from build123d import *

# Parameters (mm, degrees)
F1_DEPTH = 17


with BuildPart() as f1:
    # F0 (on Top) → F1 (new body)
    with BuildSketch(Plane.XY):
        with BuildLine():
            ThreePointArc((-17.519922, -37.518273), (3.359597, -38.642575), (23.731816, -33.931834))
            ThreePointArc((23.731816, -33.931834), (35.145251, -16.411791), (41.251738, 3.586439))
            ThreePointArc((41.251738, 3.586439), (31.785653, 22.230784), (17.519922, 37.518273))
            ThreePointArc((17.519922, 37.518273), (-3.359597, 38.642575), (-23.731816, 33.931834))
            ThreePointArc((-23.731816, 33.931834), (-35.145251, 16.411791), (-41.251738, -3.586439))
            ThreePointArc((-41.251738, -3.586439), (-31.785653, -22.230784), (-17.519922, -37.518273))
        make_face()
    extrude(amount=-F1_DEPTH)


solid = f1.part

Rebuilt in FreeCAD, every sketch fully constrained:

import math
import FreeCAD as App
import Part
import Sketcher

V = App.Vector

doc = App.newDocument("Part")
body = doc.addObject("PartDesign::Body", "Body")

# Sketch on XY plane
sketch1 = body.newObject("Sketcher::SketchObject", "Sketch")
sketch1.AttachmentSupport = (doc.getObject("XY_Plane"), [""])
sketch1.MapMode = "FlatFace"
sketch1.addGeometry([
    Part.ArcOfCircle(Part.Circle(V(-3.105949, 35.72507, 0), V(0, 0, 1), 74.648174), math.radians(-101.133291), math.radians(-68.929071)),  # 0
    Part.ArcOfCircle(Part.Circle(V(-32.491767, 15.172693, 0), V(0, 0, 1), 74.648147), math.radians(-41.133297), math.radians(-8.929065)),  # 1
    Part.ArcOfCircle(Part.Circle(V(-29.385842, -20.552363, 0), V(0, 0, 1), 74.648171), math.radians(18.866707), math.radians(51.070929)),  # 2
    Part.ArcOfCircle(Part.Circle(V(3.105949, -35.72507, 0), V(0, 0, 1), 74.648174), math.radians(78.866709), math.radians(111.070929)),  # 3
    Part.ArcOfCircle(Part.Circle(V(32.491767, -15.172693, 0), V(0, 0, 1), 74.648147), math.radians(138.866703), math.radians(171.070935)),  # 4
    Part.ArcOfCircle(Part.Circle(V(29.385842, 20.552363, 0), V(0, 0, 1), 74.648171), math.radians(-161.133293), math.radians(-128.929071)),  # 5
], False)
sketch1.addConstraint([
    Sketcher.Constraint("Coincident", 0, 2, 1, 1),
    Sketcher.Constraint("Coincident", 1, 2, 2, 1),
    Sketcher.Constraint("Coincident", 2, 2, 3, 1),
    Sketcher.Constraint("Coincident", 3, 2, 4, 1),
    Sketcher.Constraint("Coincident", 4, 2, 5, 1),
    Sketcher.Constraint("Coincident", 5, 2, 0, 1),
    Sketcher.Constraint("Equal", 0, 3),
    Sketcher.Constraint("Equal", 1, 4),
    Sketcher.Constraint("Equal", 2, 5),
    Sketcher.Constraint("Symmetric", 0, 3, 3, 3, -1, 1),
    Sketcher.Constraint("Symmetric", 1, 3, 4, 3, -1, 1),
    Sketcher.Constraint("Symmetric", 2, 3, 5, 3, -1, 1),
    Sketcher.Constraint("Radius", 2, 74.648171),
    Sketcher.Constraint("Radius", 0, 74.648174),
    Sketcher.Constraint("Radius", 1, 74.648147),
    Sketcher.Constraint("DistanceX", 0, 3, 3, 3, 6.211898),
    Sketcher.Constraint("DistanceY", -1, 1, 0, 3, 35.72507),
    Sketcher.Constraint("DistanceX", 2, 3, -1, 1, 29.385842),
    Sketcher.Constraint("DistanceX", -1, 1, 1, 2, 41.251738),
    Sketcher.Constraint("DistanceY", -1, 1, 1, 2, 3.586439),
    Sketcher.Constraint("DistanceX", 1, 3, 0, 3, 29.385818),
])
pad1 = body.newObject("PartDesign::Pad", "Pad")
pad1.Profile = sketch1
pad1.Length = 17
pad1.Reversed = True

doc.recompute()
